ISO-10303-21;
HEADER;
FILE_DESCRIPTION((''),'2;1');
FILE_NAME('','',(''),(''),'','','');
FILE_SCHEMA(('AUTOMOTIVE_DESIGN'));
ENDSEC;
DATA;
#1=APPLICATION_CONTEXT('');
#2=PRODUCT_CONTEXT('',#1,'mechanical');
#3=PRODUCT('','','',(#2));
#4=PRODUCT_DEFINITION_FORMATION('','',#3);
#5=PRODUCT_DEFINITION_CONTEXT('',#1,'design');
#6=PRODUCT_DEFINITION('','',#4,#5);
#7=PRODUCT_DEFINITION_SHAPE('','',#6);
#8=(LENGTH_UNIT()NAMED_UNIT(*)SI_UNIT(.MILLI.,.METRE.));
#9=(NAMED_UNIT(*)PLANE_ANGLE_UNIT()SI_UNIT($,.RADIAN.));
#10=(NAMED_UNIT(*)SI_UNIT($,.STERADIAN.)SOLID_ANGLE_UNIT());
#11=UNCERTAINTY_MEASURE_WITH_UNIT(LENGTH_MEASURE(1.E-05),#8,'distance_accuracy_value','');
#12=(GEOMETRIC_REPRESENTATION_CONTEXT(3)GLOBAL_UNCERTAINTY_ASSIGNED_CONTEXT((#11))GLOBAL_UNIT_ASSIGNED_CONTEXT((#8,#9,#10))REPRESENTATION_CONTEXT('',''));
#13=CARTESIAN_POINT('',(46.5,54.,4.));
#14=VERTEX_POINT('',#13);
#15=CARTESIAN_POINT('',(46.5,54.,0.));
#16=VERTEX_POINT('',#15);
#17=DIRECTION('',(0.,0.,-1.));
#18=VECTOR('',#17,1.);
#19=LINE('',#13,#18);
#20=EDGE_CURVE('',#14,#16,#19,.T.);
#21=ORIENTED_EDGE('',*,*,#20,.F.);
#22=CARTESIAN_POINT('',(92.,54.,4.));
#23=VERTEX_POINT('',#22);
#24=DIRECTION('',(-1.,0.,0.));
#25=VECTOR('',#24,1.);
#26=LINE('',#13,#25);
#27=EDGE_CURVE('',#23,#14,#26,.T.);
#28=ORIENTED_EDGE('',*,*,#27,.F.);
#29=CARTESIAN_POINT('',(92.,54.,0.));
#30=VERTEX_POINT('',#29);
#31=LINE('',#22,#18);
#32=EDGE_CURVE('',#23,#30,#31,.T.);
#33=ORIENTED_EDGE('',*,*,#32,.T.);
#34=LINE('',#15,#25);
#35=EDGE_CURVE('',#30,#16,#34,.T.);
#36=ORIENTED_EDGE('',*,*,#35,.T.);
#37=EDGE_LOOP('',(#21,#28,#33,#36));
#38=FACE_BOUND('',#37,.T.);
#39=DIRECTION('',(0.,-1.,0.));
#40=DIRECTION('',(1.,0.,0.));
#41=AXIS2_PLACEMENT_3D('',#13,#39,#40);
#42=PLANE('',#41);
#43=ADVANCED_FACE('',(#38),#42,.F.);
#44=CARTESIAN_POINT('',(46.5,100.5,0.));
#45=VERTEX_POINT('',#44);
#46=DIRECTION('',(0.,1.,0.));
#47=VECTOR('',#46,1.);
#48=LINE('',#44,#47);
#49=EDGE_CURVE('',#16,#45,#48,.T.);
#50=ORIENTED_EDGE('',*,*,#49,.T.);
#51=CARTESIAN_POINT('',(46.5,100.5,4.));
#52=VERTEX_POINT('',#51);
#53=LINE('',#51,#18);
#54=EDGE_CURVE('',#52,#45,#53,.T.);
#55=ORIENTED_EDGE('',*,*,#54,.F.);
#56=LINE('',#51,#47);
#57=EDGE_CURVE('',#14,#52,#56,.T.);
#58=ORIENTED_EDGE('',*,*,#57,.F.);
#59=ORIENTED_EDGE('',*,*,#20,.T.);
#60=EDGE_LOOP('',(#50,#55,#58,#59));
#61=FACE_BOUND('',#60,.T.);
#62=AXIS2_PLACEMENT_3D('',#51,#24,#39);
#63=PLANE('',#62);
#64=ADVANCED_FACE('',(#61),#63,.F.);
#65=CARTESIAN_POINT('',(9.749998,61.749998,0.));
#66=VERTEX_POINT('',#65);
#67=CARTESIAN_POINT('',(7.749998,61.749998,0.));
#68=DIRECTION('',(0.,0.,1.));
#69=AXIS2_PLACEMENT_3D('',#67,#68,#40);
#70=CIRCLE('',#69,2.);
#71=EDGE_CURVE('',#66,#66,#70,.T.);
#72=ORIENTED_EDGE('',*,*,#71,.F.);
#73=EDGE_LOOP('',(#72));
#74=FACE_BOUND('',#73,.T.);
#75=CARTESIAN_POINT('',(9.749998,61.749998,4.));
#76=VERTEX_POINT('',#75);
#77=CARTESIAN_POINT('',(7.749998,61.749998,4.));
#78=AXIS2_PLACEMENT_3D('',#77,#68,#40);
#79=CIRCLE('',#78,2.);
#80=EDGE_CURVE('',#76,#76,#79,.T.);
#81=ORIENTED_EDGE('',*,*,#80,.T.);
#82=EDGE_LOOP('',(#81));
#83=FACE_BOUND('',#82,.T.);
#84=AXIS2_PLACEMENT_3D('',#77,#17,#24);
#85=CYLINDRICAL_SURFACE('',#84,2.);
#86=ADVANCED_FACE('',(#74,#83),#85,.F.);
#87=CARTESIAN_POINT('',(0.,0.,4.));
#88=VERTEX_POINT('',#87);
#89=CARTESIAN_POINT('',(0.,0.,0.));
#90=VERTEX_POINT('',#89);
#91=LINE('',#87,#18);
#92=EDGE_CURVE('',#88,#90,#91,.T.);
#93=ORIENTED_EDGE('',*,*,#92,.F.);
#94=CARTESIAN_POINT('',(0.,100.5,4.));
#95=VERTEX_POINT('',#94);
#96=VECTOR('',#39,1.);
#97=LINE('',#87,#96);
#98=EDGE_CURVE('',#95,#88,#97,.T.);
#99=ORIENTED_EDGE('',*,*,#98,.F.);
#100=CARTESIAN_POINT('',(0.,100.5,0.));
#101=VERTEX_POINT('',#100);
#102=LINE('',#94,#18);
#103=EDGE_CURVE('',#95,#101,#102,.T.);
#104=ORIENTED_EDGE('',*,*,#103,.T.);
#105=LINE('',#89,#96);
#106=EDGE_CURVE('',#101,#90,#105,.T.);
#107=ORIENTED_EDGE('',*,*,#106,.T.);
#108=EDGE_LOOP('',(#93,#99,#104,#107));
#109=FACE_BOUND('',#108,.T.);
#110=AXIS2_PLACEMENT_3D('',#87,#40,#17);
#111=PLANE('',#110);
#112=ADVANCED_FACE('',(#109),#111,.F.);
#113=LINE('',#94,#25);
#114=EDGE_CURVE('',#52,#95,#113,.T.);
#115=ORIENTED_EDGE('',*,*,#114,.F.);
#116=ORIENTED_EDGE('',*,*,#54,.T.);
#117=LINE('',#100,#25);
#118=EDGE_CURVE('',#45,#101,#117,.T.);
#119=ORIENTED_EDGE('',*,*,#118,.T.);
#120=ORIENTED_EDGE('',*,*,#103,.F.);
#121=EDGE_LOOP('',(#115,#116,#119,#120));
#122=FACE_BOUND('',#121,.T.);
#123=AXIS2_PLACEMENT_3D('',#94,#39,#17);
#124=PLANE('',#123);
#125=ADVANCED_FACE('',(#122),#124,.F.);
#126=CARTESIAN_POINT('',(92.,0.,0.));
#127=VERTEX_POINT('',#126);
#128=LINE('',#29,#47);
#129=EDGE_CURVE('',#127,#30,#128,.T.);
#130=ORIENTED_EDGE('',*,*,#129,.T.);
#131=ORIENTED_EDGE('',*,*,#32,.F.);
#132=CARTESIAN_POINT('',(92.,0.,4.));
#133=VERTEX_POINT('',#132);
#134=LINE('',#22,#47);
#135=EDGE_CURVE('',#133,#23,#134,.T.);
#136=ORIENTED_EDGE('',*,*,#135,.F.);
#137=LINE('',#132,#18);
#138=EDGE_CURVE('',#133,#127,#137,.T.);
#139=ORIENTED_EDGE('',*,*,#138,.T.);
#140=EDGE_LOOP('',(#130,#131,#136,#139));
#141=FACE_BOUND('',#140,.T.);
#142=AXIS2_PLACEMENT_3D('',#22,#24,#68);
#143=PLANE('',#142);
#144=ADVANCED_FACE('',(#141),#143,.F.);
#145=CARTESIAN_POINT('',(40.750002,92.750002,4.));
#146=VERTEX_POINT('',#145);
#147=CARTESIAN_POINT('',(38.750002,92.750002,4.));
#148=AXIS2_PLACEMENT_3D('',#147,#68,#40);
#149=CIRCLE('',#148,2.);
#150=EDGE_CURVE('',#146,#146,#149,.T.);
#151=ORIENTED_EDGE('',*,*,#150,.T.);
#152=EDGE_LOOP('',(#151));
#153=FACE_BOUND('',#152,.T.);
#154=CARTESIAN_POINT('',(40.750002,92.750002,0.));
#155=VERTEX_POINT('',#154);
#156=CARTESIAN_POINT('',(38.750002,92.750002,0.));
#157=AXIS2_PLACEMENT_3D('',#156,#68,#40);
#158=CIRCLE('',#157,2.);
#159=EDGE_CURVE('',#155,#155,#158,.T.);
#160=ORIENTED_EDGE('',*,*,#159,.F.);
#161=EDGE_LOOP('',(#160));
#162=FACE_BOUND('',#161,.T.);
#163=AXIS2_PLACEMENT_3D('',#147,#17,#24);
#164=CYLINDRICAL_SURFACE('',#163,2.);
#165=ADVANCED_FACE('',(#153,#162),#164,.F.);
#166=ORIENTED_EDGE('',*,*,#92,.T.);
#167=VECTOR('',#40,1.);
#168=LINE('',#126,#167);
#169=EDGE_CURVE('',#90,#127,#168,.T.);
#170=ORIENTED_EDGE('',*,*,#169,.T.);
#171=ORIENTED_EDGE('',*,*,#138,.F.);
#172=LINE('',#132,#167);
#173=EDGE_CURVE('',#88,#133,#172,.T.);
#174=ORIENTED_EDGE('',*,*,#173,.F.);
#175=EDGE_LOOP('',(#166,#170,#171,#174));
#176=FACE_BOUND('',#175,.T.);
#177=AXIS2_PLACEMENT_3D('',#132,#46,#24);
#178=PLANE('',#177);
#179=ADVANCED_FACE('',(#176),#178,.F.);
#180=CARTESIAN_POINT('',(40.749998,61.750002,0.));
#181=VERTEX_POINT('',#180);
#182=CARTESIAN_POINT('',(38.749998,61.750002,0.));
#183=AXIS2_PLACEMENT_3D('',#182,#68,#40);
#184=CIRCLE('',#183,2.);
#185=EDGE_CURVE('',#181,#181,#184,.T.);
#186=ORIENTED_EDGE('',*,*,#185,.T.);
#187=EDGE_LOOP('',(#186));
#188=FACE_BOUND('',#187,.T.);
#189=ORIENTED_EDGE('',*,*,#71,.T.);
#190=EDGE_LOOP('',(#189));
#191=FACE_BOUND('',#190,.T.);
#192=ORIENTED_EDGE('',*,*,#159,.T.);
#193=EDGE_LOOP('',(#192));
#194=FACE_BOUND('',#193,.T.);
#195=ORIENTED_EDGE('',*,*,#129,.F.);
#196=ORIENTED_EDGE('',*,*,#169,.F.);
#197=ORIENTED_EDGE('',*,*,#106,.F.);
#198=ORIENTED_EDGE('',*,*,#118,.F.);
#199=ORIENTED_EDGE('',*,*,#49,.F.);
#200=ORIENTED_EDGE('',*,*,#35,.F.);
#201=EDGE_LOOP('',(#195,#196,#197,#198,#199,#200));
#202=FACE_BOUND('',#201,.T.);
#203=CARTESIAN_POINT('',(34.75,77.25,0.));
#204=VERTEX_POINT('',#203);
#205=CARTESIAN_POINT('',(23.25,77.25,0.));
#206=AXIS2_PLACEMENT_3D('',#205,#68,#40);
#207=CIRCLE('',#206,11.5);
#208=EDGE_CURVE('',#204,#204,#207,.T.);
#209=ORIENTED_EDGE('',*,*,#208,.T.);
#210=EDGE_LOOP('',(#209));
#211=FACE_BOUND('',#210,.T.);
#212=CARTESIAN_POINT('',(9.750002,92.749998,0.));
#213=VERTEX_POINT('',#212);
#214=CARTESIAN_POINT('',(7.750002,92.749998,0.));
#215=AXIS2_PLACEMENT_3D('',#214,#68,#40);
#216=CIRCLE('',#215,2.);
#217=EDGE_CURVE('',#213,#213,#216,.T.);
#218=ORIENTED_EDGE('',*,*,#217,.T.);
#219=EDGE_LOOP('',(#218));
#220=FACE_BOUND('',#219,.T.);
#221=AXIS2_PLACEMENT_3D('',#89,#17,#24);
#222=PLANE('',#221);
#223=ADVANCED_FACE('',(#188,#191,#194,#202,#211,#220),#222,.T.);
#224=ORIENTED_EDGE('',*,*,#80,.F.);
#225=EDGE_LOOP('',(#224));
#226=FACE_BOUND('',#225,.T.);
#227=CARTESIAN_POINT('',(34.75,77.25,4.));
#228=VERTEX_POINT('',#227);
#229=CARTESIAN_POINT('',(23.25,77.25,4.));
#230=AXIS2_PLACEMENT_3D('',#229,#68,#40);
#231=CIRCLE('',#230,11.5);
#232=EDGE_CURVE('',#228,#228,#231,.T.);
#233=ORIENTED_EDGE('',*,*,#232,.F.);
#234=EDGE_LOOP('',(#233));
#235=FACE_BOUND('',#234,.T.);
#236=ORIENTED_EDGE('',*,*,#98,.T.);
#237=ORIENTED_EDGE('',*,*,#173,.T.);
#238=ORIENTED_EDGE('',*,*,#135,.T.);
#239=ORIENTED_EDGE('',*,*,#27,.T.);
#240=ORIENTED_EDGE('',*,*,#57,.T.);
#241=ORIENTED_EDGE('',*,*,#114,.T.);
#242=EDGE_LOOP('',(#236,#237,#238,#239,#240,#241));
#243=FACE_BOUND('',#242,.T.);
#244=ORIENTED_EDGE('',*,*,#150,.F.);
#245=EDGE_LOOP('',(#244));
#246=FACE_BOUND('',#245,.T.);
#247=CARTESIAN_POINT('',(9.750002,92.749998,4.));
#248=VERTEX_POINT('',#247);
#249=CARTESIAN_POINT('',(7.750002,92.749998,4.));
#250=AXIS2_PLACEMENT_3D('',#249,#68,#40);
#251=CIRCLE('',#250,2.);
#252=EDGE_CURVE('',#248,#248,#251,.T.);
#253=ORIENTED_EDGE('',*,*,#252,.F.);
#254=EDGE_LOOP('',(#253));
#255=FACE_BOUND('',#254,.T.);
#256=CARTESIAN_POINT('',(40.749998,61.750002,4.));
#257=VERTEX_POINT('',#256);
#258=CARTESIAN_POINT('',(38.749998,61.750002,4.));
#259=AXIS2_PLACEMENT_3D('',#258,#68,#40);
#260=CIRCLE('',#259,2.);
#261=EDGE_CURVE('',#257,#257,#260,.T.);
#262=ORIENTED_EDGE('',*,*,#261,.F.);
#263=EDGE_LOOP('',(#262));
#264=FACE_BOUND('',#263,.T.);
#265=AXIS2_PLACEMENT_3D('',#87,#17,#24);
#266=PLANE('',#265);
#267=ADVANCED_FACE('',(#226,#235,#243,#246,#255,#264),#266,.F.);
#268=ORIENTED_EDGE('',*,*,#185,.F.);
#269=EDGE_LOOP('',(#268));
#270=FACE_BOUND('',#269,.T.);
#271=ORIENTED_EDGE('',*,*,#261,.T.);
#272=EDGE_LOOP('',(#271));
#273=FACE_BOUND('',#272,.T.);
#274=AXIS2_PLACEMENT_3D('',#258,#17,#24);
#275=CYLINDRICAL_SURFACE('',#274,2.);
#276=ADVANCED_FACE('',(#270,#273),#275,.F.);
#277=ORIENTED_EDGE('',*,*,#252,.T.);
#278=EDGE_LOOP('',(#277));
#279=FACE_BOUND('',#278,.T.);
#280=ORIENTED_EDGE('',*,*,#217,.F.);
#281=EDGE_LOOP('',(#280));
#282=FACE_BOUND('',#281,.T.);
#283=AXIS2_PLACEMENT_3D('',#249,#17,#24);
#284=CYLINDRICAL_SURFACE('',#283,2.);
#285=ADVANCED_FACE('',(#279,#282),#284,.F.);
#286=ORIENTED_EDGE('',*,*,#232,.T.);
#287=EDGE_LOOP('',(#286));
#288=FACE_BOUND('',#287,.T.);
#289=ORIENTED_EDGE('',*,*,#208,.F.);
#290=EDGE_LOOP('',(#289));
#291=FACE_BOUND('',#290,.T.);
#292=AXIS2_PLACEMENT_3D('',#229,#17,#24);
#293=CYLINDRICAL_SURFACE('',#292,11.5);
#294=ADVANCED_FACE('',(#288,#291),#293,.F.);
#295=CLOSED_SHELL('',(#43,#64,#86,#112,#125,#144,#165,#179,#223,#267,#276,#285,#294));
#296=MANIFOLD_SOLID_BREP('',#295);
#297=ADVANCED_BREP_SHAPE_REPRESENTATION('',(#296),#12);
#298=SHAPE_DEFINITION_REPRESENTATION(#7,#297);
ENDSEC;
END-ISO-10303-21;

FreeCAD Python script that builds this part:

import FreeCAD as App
import Part
import Sketcher

V = App.Vector

doc = App.newDocument("Part")
body = doc.addObject("PartDesign::Body", "Body")

sketch1 = body.newObject("Sketcher::SketchObject", "Sketch")
sketch1.AttachmentSupport = (doc.getObject("XY_Plane"), [""])
sketch1.MapMode = "FlatFace"
sketch1.addGeometry([
    Part.LineSegment(V(0, 100.5, 0), V(0, 0, 0)),
    Part.LineSegment(V(0, 0, 0), V(92, 0, 0)),
    Part.LineSegment(V(92, 0, 0), V(92, 54, 0)),
    Part.LineSegment(V(92, 54, 0), V(46.5, 54, 0)),
    Part.LineSegment(V(46.5, 54, 0), V(46.5, 100.5, 0)),
    Part.LineSegment(V(46.5, 100.5, 0), V(0, 100.5, 0)),
    Part.Circle(V(38.7, 61.8, 0), V(0, 0, 1), 2),
    Part.Circle(V(7.7, 61.7, 0), V(0, 0, 1), 2),
    Part.Circle(V(23.2, 77.2, 0), V(0, 0, 1), 11.5),
    Part.Circle(V(38.8, 92.8, 0), V(0, 0, 1), 2),
    Part.Circle(V(7.8, 92.7, 0), V(0, 0, 1), 2),
], False)
sketch1.addConstraint([
    Sketcher.Constraint("Coincident", 0, 2, 1, 1),
    Sketcher.Constraint("Coincident", 1, 2, 2, 1),
    Sketcher.Constraint("Coincident", 2, 2, 3, 1),
    Sketcher.Constraint("Coincident", 3, 2, 4, 1),
    Sketcher.Constraint("Coincident", 4, 2, 5, 1),
    Sketcher.Constraint("Coincident", 5, 2, 0, 1),
    Sketcher.Constraint("Vertical", 0),
    Sketcher.Constraint("Horizontal", 1),
    Sketcher.Constraint("Vertical", 2),
    Sketcher.Constraint("Horizontal", 3),
    Sketcher.Constraint("Vertical", 4),
    Sketcher.Constraint("Horizontal", 5),
    Sketcher.Constraint("Coincident", 0, 2, -1, 1),
    Sketcher.Constraint("Equal", 6, 7),
    Sketcher.Constraint("Equal", 7, 9),
    Sketcher.Constraint("Equal", 9, 10),
    Sketcher.Constraint("Equal", 5, 4),
    Sketcher.Constraint("Diameter", 6, 4.0),
    Sketcher.Constraint("Diameter", 8, 23.0),
    Sketcher.Constraint("DistanceX", 1, 1, 1, 2, 92.0),
    Sketcher.Constraint("DistanceY", 2, 1, 2, 2, 54.0),
    Sketcher.Constraint("DistanceX", 3, 2, 3, 1, 45.5),
    Sketcher.Constraint("DistanceX", 7, 3, 6, 3, 31.0),
    Sketcher.Constraint("DistanceY", 6, 3, 9, 3, 31.0),
    Sketcher.Constraint("DistanceY", 7, 3, 10, 3, 31.0),
    Sketcher.Constraint("DistanceX", 10, 3, 9, 3, 31.0),
    Sketcher.Constraint("DistanceX", 8, 3, 6, 3, 15.499998),
    Sketcher.Constraint("DistanceY", 6, 3, 8, 3, 15.499998),
    Sketcher.Constraint("DistanceY", 7, 3, 8, 3, 15.500002),
    Sketcher.Constraint("DistanceX", 8, 3, 9, 3, 15.500002),
    Sketcher.Constraint("DistanceX", -1, 1, 6, 3, 38.749998),
    Sketcher.Constraint("DistanceY", -1, 1, 6, 3, 61.750002),
])
pad1 = body.newObject("PartDesign::Pad", "Pad")
pad1.Profile = sketch1
pad1.Length = 4

doc.recompute()
